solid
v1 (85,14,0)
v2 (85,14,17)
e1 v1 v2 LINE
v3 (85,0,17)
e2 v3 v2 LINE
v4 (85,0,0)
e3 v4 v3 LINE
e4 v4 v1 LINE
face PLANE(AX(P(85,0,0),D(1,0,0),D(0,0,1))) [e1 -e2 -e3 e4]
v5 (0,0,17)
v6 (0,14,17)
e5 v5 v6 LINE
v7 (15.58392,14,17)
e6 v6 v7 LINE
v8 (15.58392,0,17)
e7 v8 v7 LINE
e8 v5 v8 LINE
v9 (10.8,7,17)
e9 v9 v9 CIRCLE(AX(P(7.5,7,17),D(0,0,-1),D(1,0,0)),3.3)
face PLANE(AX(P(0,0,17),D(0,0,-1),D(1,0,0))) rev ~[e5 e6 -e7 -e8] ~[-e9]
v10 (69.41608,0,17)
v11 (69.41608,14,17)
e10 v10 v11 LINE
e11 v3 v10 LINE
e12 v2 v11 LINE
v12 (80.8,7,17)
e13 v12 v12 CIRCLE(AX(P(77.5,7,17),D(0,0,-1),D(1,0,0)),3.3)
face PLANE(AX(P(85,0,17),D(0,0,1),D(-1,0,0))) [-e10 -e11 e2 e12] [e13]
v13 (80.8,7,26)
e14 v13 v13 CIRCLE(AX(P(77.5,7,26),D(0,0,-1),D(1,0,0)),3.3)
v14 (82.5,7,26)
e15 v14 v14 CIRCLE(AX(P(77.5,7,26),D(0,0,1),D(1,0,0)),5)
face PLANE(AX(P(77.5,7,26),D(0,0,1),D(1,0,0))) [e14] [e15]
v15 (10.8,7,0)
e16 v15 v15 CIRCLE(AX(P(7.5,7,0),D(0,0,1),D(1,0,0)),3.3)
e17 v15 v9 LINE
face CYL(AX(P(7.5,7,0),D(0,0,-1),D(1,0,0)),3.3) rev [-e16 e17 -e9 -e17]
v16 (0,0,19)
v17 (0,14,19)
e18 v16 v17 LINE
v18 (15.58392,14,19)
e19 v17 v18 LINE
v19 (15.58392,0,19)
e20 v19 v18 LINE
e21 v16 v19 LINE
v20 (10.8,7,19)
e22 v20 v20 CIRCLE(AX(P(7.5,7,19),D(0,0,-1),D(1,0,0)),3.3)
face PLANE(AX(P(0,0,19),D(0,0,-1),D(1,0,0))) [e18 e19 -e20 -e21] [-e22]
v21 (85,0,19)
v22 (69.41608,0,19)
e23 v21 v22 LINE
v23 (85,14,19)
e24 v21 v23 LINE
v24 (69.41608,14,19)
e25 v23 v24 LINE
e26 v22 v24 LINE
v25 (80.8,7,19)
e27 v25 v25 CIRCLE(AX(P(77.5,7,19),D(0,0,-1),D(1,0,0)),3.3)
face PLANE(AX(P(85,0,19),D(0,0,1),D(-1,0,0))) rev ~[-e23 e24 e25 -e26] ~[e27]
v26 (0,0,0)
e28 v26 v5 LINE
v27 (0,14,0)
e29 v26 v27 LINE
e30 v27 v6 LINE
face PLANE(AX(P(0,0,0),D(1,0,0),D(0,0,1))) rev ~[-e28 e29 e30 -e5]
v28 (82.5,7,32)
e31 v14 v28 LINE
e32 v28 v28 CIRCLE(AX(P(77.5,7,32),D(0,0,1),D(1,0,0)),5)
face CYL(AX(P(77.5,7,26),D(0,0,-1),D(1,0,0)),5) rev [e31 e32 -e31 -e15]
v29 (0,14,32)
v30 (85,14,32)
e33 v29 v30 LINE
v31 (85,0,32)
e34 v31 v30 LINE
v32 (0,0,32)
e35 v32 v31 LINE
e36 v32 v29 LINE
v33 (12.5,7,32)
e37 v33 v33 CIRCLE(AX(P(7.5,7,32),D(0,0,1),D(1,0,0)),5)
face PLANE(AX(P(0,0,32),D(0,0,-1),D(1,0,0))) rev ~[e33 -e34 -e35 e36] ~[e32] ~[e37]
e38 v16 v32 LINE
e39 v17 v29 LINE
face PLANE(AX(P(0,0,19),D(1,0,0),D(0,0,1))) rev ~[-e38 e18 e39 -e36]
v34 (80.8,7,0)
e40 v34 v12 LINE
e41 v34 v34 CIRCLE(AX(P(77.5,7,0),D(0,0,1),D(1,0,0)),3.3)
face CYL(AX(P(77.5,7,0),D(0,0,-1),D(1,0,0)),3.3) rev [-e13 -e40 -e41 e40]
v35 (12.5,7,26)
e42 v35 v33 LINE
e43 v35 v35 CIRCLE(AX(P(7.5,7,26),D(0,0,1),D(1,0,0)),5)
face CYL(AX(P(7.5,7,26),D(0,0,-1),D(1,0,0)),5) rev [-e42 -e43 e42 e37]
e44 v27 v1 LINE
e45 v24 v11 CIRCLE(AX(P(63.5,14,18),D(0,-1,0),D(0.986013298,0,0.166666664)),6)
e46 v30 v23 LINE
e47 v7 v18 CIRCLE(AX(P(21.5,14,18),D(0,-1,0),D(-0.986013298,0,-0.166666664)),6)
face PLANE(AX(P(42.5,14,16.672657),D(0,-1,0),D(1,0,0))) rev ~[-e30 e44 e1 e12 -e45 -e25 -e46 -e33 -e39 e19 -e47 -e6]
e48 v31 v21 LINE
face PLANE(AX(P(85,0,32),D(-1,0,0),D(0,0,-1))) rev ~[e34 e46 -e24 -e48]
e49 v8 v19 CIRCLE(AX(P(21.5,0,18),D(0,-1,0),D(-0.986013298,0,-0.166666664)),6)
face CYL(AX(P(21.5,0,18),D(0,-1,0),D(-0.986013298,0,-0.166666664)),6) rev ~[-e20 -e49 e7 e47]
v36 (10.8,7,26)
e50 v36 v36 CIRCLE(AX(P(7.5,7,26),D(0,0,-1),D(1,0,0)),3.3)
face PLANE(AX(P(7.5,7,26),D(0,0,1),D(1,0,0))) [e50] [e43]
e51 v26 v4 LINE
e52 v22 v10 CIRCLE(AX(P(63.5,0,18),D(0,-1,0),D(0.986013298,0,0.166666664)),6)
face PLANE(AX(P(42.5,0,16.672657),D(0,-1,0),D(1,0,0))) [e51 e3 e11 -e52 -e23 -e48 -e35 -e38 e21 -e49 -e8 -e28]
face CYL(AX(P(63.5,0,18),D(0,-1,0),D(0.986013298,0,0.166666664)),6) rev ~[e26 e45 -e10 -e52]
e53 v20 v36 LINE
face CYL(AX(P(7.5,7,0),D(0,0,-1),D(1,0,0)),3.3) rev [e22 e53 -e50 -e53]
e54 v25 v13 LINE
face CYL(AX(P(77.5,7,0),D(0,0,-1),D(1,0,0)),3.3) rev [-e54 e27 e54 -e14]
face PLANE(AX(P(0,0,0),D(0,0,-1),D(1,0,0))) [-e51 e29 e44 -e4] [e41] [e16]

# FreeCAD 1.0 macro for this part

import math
import FreeCAD as App
import Part
import Sketcher
Q = App.Units.Quantity

doc = App.newDocument("Part")
body = doc.addObject("PartDesign::Body", "Body")

# Sketch on XY plane
sketch1 = body.newObject("Sketcher::SketchObject", "Sketch")
sketch1.AttachmentSupport = (doc.getObject("XY_Plane"), [""])
sketch1.MapMode = "FlatFace"
sketch1.addGeometry(Part.Circle(App.Vector(0, 0, 0), App.Vector(0, 0, 1), 3.3), False)
sketch1.addConstraint(Sketcher.Constraint("Coincident", 0, 3, -1, 1))
sketch1.addConstraint(Sketcher.Constraint("Diameter", 0, Q("6.6 mm")))
pad1 = body.newObject("PartDesign::Pad", "Pad")
pad1.Profile = sketch1
pad1.Length = 28
body2 = doc.addObject("PartDesign::Body", "Body001")

# Sketch on XY plane
sketch2 = body2.newObject("Sketcher::SketchObject", "Sketch001")
sketch2.AttachmentSupport = (doc.getObject("XY_Plane001"), [""])
sketch2.MapMode = "FlatFace"
sketch2.AttachmentOffset = App.Placement(App.Vector(0, 0, 26), App.Rotation())
sketch2.addGeometry(Part.Circle(App.Vector(0, 0, 0), App.Vector(0, 0, 1), 5), False)
sketch2.addConstraint(Sketcher.Constraint("Coincident", 0, 3, -1, 1))
sketch2.addConstraint(Sketcher.Constraint("Diameter", 0, Q("10 mm")))
pad2 = body2.newObject("PartDesign::Pad", "Pad001")
pad2.Profile = sketch2
pad2.Length = 6
doc.recompute()

boolean = body2.newObject("PartDesign::Boolean", "Boolean")
boolean.Type = "Fuse"
boolean.addObjects([body])
body3 = doc.addObject("PartDesign::Body", "Body002")
doc.recompute()

body2.Placement = App.Placement(App.Vector(77.5, 7, 0), App.Rotation(App.Vector(0, 0, 1), 0))
boolean2 = body3.newObject("PartDesign::Boolean", "Boolean001")
boolean2.Type = "Fuse"
boolean2.addObjects([body2])
body4 = doc.addObject("PartDesign::Body", "Body003")

# Sketch on XY plane
sketch3 = body4.newObject("Sketcher::SketchObject", "Sketch002")
sketch3.AttachmentSupport = (doc.getObject("XY_Plane003"), [""])
sketch3.MapMode = "FlatFace"
sketch3.addGeometry(Part.Circle(App.Vector(0, 0, 0), App.Vector(0, 0, 1), 3.3), False)
sketch3.addConstraint(Sketcher.Constraint("Coincident", 0, 3, -1, 1))
sketch3.addConstraint(Sketcher.Constraint("Diameter", 0, Q("6.6 mm")))
pad3 = body4.newObject("PartDesign::Pad", "Pad002")
pad3.Profile = sketch3
pad3.Length = 28
body5 = doc.addObject("PartDesign::Body", "Body004")

# Sketch on XY plane
sketch4 = body5.newObject("Sketcher::SketchObject", "Sketch003")
sketch4.AttachmentSupport = (doc.getObject("XY_Plane004"), [""])
sketch4.MapMode = "FlatFace"
sketch4.AttachmentOffset = App.Placement(App.Vector(0, 0, 26), App.Rotation())
sketch4.addGeometry(Part.Circle(App.Vector(0, 0, 0), App.Vector(0, 0, 1), 5), False)
sketch4.addConstraint(Sketcher.Constraint("Coincident", 0, 3, -1, 1))
sketch4.addConstraint(Sketcher.Constraint("Diameter", 0, Q("10 mm")))
pad4 = body5.newObject("PartDesign::Pad", "Pad003")
pad4.Profile = sketch4
pad4.Length = 6
doc.recompute()

boolean3 = body5.newObject("PartDesign::Boolean", "Boolean002")
boolean3.Type = "Fuse"
boolean3.addObjects([body4])
body6 = doc.addObject("PartDesign::Body", "Body005")
body6.AllowCompound = True
doc.recompute()

body5.Placement = App.Placement(App.Vector(7.5, 7, 0), App.Rotation(App.Vector(0, 0, 1), 0))
boolean4 = body6.newObject("PartDesign::Boolean", "Boolean003")
boolean4.Type = "Fuse"
boolean4.addObjects([body5])
doc.recompute()

boolean5 = body6.newObject("PartDesign::Boolean", "Boolean004")
boolean5.Type = "Fuse"
boolean5.addObjects([body3])
body7 = doc.addObject("PartDesign::Body", "Body006")

# Sketch on XZ plane
sketch5 = body7.newObject("Sketcher::SketchObject", "Sketch004")
sketch5.AttachmentSupport = (doc.getObject("XZ_Plane006"), [""])
sketch5.MapMode = "FlatFace"
sketch5.addGeometry(Part.LineSegment(App.Vector(0, 0, 0), App.Vector(85, 0, 0)), False)
sketch5.addGeometry(Part.LineSegment(App.Vector(85, 0, 0), App.Vector(85, 17, 0)), False)
sketch5.addGeometry(Part.LineSegment(App.Vector(85, 17, 0), App.Vector(69.4, 17, 0)), False)
sketch5.addGeometry(Part.ArcOfCircle(Part.Circle(App.Vector(63.5, 18, 0), App.Vector(0, 0, 1), 6), math.radians(10), math.radians(350)), False)
sketch5.addGeometry(Part.LineSegment(App.Vector(69.4, 19, 0), App.Vector(85, 19, 0)), False)
sketch5.addGeometry(Part.LineSegment(App.Vector(85, 19, 0), App.Vector(85, 32, 0)), False)
sketch5.addGeometry(Part.LineSegment(App.Vector(85, 32, 0), App.Vector(0, 32, 0)), False)
sketch5.addGeometry(Part.LineSegment(App.Vector(0, 32, 0), App.Vector(0, 19, 0)), False)
sketch5.addGeometry(Part.LineSegment(App.Vector(0, 19, 0), App.Vector(15.6, 19, 0)), False)
sketch5.addGeometry(Part.ArcOfCircle(Part.Circle(App.Vector(21.5, 18, 0), App.Vector(0, 0, 1), 6), math.radians(-170), math.radians(170)), False)
sketch5.addGeometry(Part.LineSegment(App.Vector(15.6, 17, 0), App.Vector(0, 17, 0)), False)
sketch5.addGeometry(Part.LineSegment(App.Vector(0, 17, 0), App.Vector(0, 0, 0)), False)
sketch5.addConstraint(Sketcher.Constraint("Coincident", 0, 2, 1, 1))
sketch5.addConstraint(Sketcher.Constraint("Coincident", 1, 2, 2, 1))
sketch5.addConstraint(Sketcher.Constraint("Coincident", 2, 2, 3, 2))
sketch5.addConstraint(Sketcher.Constraint("Coincident", 3, 1, 4, 1))
sketch5.addConstraint(Sketcher.Constraint("Coincident", 4, 2, 5, 1))
sketch5.addConstraint(Sketcher.Constraint("Coincident", 5, 2, 6, 1))
sketch5.addConstraint(Sketcher.Constraint("Coincident", 6, 2, 7, 1))
sketch5.addConstraint(Sketcher.Constraint("Coincident", 7, 2, 8, 1))
sketch5.addConstraint(Sketcher.Constraint("Coincident", 8, 2, 9, 2))
sketch5.addConstraint(Sketcher.Constraint("Coincident", 9, 1, 10, 1))
sketch5.addConstraint(Sketcher.Constraint("Coincident", 10, 2, 11, 1))
sketch5.addConstraint(Sketcher.Constraint("Coincident", 11, 2, 0, 1))
sketch5.addConstraint(Sketcher.Constraint("Horizontal", 0))
sketch5.addConstraint(Sketcher.Constraint("Vertical", 1))
sketch5.addConstraint(Sketcher.Constraint("Horizontal", 2))
sketch5.addConstraint(Sketcher.Constraint("Horizontal", 4))
sketch5.addConstraint(Sketcher.Constraint("Vertical", 5))
sketch5.addConstraint(Sketcher.Constraint("Horizontal", 6))
sketch5.addConstraint(Sketcher.Constraint("Vertical", 7))
sketch5.addConstraint(Sketcher.Constraint("Horizontal", 8))
sketch5.addConstraint(Sketcher.Constraint("Horizontal", 10))
sketch5.addConstraint(Sketcher.Constraint("Vertical", 11))
sketch5.addConstraint(Sketcher.Constraint("Coincident", 11, 2, -1, 1))
sketch5.addConstraint(Sketcher.Constraint("Equal", 3, 9))
sketch5.addConstraint(Sketcher.Constraint("PointOnObject", 6, 2, -2))
sketch5.addConstraint(Sketcher.Constraint("Horizontal", 3, 3, 9, 3))
sketch5.addConstraint(Sketcher.Constraint("Horizontal", 4, 2, 7, 2))
sketch5.addConstraint(Sketcher.Constraint("Horizontal", 2, 2, 9, 1))
sketch5.addConstraint(Sketcher.Constraint("Vertical", 2, 2, 3, 1))
sketch5.addConstraint(Sketcher.Constraint("Vertical", 1, 2, 4, 2))
sketch5.addConstraint(Sketcher.Constraint("Equal", 4, 8))
sketch5.addConstraint(Sketcher.Constraint("Radius", 3, Q("6 mm")))
sketch5.addConstraint(Sketcher.Constraint("DistanceX", 0, 1, 0, 2, Q("85 mm")))
sketch5.addConstraint(Sketcher.Constraint("DistanceY", 1, 1, 1, 2, Q("17 mm")))
sketch5.addConstraint(Sketcher.Constraint("DistanceY", 5, 1, 5, 2, Q("13 mm")))
sketch5.addConstraint(Sketcher.Constraint("DistanceY", -1, 1, 3, 3, Q("18 mm")))
sketch5.addConstraint(Sketcher.Constraint("DistanceX", 9, 3, 3, 3, Q("42 mm")))
pad5 = body7.newObject("PartDesign::Pad", "Pad004")
pad5.Profile = sketch5
pad5.Length = 14
pad5.Reversed = True
doc.recompute()

boolean6 = body7.newObject("PartDesign::Boolean", "Boolean005")
boolean6.Type = "Cut"
boolean6.addObjects([body6])

doc.recompute()
